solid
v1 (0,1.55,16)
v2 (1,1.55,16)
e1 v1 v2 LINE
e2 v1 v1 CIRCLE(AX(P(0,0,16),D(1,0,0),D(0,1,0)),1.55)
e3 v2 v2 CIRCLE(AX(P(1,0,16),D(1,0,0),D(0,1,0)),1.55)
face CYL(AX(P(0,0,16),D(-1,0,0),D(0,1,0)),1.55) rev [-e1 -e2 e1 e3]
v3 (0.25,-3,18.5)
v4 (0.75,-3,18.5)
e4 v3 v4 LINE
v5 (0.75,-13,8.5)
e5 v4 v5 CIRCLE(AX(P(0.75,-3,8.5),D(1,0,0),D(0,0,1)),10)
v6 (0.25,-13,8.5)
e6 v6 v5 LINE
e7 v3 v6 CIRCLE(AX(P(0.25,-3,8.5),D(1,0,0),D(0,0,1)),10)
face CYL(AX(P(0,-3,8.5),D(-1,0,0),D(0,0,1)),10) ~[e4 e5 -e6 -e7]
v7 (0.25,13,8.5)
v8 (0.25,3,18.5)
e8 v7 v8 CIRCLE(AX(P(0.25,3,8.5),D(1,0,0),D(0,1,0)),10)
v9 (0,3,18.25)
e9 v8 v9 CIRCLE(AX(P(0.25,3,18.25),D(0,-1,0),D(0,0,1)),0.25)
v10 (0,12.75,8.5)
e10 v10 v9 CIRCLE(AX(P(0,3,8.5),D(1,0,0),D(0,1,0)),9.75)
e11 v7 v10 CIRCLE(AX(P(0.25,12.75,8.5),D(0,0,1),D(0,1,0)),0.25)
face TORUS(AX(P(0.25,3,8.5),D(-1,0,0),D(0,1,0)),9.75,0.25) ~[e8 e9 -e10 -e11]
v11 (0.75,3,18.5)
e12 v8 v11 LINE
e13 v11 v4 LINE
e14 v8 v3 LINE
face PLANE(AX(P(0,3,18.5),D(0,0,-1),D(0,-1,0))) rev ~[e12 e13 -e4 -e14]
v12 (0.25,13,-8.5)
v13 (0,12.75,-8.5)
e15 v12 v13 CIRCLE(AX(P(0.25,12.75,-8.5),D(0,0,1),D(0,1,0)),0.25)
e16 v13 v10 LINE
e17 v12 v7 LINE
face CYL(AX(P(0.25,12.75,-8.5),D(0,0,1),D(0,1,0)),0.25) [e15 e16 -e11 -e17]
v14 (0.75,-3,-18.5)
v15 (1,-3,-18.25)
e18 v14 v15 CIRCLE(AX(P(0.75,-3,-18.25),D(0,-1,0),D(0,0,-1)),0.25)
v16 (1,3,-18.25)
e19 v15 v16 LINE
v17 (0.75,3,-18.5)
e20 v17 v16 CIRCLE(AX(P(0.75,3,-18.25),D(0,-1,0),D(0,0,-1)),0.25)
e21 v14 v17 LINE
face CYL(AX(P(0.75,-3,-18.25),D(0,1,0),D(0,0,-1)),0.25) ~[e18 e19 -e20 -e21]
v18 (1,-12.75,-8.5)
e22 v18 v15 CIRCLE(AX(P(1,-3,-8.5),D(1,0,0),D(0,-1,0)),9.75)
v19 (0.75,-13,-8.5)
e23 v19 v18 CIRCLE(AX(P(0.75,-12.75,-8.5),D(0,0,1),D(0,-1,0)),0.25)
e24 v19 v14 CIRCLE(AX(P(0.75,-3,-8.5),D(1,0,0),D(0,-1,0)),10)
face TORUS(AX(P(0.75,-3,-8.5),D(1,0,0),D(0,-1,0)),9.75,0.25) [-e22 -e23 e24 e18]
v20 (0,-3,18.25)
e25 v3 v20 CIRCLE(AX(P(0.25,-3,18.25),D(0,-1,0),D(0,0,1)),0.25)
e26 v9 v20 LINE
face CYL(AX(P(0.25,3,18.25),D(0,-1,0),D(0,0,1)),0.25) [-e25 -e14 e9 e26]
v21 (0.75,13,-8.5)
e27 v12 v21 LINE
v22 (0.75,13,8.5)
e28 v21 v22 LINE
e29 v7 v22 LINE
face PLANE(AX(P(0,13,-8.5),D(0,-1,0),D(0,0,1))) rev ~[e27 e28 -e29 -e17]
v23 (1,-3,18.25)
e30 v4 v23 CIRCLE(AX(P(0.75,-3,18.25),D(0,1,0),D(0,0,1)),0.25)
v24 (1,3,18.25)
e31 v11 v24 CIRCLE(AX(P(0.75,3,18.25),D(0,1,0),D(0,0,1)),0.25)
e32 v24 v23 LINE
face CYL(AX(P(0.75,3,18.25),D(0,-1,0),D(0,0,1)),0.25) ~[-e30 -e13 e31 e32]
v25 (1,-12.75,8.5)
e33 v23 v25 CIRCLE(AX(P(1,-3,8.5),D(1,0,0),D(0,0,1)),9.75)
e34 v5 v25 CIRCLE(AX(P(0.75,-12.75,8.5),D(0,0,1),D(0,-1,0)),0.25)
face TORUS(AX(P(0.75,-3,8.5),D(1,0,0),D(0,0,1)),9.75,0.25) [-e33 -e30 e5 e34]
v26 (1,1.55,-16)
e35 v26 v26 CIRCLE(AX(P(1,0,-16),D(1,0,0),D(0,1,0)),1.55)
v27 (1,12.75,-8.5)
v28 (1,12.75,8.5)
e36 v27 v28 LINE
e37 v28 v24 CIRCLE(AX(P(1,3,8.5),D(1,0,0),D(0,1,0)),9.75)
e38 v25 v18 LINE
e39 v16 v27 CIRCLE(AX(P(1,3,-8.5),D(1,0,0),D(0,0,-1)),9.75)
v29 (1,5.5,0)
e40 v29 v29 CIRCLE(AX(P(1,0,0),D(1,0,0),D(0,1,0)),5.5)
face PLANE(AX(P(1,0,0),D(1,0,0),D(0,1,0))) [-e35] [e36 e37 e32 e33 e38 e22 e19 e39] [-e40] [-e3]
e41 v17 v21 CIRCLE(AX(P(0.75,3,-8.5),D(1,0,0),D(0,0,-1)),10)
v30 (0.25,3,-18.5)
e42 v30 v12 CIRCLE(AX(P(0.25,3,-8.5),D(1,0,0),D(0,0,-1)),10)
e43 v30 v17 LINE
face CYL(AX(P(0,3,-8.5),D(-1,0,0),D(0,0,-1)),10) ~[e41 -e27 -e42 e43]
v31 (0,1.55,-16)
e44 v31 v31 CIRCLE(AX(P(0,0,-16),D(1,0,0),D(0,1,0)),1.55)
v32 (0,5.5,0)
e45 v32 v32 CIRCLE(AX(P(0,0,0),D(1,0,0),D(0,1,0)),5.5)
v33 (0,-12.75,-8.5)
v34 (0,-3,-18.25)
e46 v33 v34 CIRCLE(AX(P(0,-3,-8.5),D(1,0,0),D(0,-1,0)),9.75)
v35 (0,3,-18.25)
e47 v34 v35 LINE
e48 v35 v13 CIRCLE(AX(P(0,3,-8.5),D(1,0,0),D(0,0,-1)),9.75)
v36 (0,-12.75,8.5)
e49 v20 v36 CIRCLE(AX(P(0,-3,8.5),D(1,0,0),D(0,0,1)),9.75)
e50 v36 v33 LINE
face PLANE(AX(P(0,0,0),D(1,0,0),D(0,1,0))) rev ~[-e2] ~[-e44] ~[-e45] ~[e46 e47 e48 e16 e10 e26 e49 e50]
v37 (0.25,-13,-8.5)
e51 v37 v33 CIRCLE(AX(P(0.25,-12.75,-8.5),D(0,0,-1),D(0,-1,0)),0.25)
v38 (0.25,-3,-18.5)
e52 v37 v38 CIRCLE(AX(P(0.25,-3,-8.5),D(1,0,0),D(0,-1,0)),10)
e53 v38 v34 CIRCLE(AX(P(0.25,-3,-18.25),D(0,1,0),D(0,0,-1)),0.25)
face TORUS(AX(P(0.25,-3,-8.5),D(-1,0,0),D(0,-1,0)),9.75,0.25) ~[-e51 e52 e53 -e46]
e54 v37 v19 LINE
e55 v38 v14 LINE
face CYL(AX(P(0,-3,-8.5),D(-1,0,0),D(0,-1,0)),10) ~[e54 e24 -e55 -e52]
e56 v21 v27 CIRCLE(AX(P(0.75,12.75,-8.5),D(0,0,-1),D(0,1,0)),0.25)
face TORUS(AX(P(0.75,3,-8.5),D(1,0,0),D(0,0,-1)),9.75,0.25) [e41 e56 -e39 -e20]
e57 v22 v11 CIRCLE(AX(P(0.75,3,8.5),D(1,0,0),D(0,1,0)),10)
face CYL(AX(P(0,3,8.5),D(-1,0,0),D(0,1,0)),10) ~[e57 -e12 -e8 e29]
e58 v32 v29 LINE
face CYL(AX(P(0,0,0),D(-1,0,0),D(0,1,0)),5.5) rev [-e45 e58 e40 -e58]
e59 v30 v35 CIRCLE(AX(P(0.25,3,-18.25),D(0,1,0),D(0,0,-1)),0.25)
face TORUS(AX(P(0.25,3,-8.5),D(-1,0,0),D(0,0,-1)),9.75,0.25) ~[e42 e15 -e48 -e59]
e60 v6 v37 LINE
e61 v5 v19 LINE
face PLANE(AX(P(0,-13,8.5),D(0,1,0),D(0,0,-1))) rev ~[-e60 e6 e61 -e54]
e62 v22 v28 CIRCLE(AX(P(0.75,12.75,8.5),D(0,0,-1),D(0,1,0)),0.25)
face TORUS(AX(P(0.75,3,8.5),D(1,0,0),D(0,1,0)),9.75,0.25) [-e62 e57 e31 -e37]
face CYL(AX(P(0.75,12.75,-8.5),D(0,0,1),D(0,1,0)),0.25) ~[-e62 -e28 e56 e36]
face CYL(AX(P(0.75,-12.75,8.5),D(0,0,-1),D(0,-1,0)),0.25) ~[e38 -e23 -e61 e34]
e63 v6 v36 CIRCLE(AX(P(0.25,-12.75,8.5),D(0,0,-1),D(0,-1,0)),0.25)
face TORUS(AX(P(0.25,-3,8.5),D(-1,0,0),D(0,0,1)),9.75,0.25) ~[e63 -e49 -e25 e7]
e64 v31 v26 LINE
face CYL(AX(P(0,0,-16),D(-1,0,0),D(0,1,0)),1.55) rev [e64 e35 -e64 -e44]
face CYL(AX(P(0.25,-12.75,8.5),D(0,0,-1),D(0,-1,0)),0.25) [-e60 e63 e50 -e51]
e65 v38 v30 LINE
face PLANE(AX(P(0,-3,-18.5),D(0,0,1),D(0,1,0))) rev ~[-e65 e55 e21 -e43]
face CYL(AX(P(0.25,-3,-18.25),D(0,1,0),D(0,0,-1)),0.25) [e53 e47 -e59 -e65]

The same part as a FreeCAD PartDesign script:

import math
import FreeCAD as App
import Part
import Sketcher
from FreeCAD import Vector
Q = App.Units.Quantity


def edges_at(feature, points):
    """Names of the edges that pass closest to the given points."""
    edges = feature.Shape.Edges
    near = lambda p: min(range(len(edges)), key=lambda i: edges[i].distToShape(Part.Vertex(*p))[0])
    return sorted({f"Edge{near(p) + 1}" for p in points})

doc = App.newDocument("Part")
body = doc.addObject("PartDesign::Body", "Body")

sketch1 = body.newObject("Sketcher::SketchObject", "Sketch")
sketch1.AttachmentSupport = (doc.getObject("YZ_Plane"), [""])
sketch1.MapMode = "FlatFace"
sketch1.addGeometry([
    Part.ArcOfCircle(Part.Circle(Vector(3, 8.5, 0), Vector(0, 0, 1), 10), math.radians(0), math.radians(90)),
    Part.LineSegment(Vector(3, 18.5, 0), Vector(-3, 18.5, 0)),
    Part.ArcOfCircle(Part.Circle(Vector(-3, 8.5, 0), Vector(0, 0, 1), 10), math.radians(90), math.radians(180)),
    Part.LineSegment(Vector(-13, 8.5, 0), Vector(-13, -8.5, 0)),
    Part.ArcOfCircle(Part.Circle(Vector(-3, -8.5, 0), Vector(0, 0, 1), 10), math.radians(180), math.radians(270)),
    Part.LineSegment(Vector(-3, -18.5, 0), Vector(3, -18.5, 0)),
    Part.ArcOfCircle(Part.Circle(Vector(3, -8.5, 0), Vector(0, 0, 1), 10), math.radians(-90), math.radians(0)),
    Part.LineSegment(Vector(13, -8.5, 0), Vector(13, 8.5, 0)),
    Part.Circle(Vector(0, -16, 0), Vector(0, 0, 1), 1.6),
    Part.Circle(Vector(0, 0, 0), Vector(0, 0, 1), 5.5),
    Part.Circle(Vector(0, 16, 0), Vector(0, 0, 1), 1.6),
], False)
sketch1.addConstraint([
    Sketcher.Constraint("Tangent", 0, 2, 1, 1),
    Sketcher.Constraint("Tangent", 1, 2, 2, 1),
    Sketcher.Constraint("Tangent", 2, 2, 3, 1),
    Sketcher.Constraint("Tangent", 3, 2, 4, 1),
    Sketcher.Constraint("Tangent", 4, 2, 5, 1),
    Sketcher.Constraint("Tangent", 5, 2, 6, 1),
    Sketcher.Constraint("Tangent", 6, 2, 7, 1),
    Sketcher.Constraint("Tangent", 7, 2, 0, 1),
    Sketcher.Constraint("Horizontal", 1),
    Sketcher.Constraint("Vertical", 3),
    Sketcher.Constraint("Horizontal", 5),
    Sketcher.Constraint("Vertical", 7),
    Sketcher.Constraint("Coincident", 9, 3, -1, 1),
    Sketcher.Constraint("Equal", 0, 2),
    Sketcher.Constraint("Equal", 2, 4),
    Sketcher.Constraint("Equal", 4, 6),
    Sketcher.Constraint("Equal", 8, 10),
    Sketcher.Constraint("Symmetric", 0, 3, 4, 3, -1, 1),
    Sketcher.Constraint("Symmetric", 8, 3, 10, 3, -1, 1),
    Sketcher.Constraint("PointOnObject", 8, 3, -2),
    Sketcher.Constraint("Diameter", 9, Q("11 mm")),
    Sketcher.Constraint("Radius", 0, Q("10 mm")),
    Sketcher.Constraint("Diameter", 8, Q("3.1 mm")),
    Sketcher.Constraint("DistanceY", 10, 3, 0, 2, Q("2.5 mm")),
    Sketcher.Constraint("DistanceX", 1, 2, 1, 1, Q("6 mm")),
    Sketcher.Constraint("DistanceY", 3, 2, 3, 1, Q("17 mm")),
])
pad1 = body.newObject("PartDesign::Pad", "Pad")
pad1.Profile = sketch1
pad1.Length = 1
doc.recompute()

fillet = body.newObject("PartDesign::Fillet", "Fillet")
fillet.Base = (pad1, edges_at(pad1, [
    (1, 0, 18.5),
    (1, -10.071, 15.571),
    (1, -13, 0),
    (1, -10.071, -15.571),
    (1, 0, -18.5),
    (1, 10.071, -15.571),
    (1, 13, 0),
    (1, 10.071, 15.571),
    (0, 0, 18.5),
    (0, -10.071, 15.571),
    (0, -13, 0),
    (0, -10.071, -15.571),
    (0, 0, -18.5),
    (0, 10.071, -15.571),
    (0, 13, 0),
    (0, 10.071, 15.571),
]))
fillet.Radius = 0.25

doc.recompute()
